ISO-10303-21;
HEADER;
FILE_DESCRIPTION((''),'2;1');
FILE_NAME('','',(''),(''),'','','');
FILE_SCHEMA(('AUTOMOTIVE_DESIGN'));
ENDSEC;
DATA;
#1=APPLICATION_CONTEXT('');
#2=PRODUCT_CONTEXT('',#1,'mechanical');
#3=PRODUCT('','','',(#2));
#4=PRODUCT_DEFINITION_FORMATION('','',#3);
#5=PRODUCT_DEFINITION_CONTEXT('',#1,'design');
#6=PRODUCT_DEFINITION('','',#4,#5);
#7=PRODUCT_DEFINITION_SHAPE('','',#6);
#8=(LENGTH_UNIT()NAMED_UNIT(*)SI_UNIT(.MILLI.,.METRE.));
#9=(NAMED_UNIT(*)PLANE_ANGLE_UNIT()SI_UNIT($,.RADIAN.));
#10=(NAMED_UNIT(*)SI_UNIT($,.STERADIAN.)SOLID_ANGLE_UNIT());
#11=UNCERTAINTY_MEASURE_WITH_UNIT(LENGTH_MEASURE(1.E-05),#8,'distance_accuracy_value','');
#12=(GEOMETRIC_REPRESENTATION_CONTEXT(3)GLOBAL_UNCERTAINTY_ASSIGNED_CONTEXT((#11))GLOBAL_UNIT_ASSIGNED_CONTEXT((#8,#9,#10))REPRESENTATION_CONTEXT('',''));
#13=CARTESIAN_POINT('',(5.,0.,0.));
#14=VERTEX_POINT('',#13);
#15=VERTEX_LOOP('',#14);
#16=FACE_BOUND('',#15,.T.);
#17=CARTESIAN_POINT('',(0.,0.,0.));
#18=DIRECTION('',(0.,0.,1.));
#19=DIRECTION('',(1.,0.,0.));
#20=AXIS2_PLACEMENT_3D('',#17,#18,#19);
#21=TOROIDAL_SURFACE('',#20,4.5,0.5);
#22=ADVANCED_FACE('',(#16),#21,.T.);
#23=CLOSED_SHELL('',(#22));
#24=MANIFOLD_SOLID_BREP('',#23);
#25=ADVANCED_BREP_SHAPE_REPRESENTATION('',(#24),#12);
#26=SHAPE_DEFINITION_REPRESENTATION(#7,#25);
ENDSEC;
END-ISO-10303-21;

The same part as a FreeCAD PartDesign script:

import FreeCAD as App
import Part
import Sketcher
from FreeCAD import Vector

doc = App.newDocument("Part")
body = doc.addObject("PartDesign::Body", "Body")

# Sketch on YZ plane
sketch1 = body.newObject("Sketcher::SketchObject", "Sketch")
sketch1.AttachmentSupport = (doc.getObject("YZ_Plane"), [""])
sketch1.MapMode = "FlatFace"
sketch1.addGeometry(Part.Circle(Vector(-4.5, 0, 0), Vector(0, 0, 1), 0.5), False)
sketch1.addConstraint([
    Sketcher.Constraint("PointOnObject", 0, 3, -1),
    Sketcher.Constraint("Diameter", 0, 1.0),
    Sketcher.Constraint("DistanceX", 0, 3, -1, 1, 4.5),
])
revolution = body.newObject("PartDesign::Revolution", "Revolution")
revolution.Profile = sketch1
revolution.ReferenceAxis = (sketch1, ["V_Axis"])
revolution.Angle = 360

doc.recompute()
